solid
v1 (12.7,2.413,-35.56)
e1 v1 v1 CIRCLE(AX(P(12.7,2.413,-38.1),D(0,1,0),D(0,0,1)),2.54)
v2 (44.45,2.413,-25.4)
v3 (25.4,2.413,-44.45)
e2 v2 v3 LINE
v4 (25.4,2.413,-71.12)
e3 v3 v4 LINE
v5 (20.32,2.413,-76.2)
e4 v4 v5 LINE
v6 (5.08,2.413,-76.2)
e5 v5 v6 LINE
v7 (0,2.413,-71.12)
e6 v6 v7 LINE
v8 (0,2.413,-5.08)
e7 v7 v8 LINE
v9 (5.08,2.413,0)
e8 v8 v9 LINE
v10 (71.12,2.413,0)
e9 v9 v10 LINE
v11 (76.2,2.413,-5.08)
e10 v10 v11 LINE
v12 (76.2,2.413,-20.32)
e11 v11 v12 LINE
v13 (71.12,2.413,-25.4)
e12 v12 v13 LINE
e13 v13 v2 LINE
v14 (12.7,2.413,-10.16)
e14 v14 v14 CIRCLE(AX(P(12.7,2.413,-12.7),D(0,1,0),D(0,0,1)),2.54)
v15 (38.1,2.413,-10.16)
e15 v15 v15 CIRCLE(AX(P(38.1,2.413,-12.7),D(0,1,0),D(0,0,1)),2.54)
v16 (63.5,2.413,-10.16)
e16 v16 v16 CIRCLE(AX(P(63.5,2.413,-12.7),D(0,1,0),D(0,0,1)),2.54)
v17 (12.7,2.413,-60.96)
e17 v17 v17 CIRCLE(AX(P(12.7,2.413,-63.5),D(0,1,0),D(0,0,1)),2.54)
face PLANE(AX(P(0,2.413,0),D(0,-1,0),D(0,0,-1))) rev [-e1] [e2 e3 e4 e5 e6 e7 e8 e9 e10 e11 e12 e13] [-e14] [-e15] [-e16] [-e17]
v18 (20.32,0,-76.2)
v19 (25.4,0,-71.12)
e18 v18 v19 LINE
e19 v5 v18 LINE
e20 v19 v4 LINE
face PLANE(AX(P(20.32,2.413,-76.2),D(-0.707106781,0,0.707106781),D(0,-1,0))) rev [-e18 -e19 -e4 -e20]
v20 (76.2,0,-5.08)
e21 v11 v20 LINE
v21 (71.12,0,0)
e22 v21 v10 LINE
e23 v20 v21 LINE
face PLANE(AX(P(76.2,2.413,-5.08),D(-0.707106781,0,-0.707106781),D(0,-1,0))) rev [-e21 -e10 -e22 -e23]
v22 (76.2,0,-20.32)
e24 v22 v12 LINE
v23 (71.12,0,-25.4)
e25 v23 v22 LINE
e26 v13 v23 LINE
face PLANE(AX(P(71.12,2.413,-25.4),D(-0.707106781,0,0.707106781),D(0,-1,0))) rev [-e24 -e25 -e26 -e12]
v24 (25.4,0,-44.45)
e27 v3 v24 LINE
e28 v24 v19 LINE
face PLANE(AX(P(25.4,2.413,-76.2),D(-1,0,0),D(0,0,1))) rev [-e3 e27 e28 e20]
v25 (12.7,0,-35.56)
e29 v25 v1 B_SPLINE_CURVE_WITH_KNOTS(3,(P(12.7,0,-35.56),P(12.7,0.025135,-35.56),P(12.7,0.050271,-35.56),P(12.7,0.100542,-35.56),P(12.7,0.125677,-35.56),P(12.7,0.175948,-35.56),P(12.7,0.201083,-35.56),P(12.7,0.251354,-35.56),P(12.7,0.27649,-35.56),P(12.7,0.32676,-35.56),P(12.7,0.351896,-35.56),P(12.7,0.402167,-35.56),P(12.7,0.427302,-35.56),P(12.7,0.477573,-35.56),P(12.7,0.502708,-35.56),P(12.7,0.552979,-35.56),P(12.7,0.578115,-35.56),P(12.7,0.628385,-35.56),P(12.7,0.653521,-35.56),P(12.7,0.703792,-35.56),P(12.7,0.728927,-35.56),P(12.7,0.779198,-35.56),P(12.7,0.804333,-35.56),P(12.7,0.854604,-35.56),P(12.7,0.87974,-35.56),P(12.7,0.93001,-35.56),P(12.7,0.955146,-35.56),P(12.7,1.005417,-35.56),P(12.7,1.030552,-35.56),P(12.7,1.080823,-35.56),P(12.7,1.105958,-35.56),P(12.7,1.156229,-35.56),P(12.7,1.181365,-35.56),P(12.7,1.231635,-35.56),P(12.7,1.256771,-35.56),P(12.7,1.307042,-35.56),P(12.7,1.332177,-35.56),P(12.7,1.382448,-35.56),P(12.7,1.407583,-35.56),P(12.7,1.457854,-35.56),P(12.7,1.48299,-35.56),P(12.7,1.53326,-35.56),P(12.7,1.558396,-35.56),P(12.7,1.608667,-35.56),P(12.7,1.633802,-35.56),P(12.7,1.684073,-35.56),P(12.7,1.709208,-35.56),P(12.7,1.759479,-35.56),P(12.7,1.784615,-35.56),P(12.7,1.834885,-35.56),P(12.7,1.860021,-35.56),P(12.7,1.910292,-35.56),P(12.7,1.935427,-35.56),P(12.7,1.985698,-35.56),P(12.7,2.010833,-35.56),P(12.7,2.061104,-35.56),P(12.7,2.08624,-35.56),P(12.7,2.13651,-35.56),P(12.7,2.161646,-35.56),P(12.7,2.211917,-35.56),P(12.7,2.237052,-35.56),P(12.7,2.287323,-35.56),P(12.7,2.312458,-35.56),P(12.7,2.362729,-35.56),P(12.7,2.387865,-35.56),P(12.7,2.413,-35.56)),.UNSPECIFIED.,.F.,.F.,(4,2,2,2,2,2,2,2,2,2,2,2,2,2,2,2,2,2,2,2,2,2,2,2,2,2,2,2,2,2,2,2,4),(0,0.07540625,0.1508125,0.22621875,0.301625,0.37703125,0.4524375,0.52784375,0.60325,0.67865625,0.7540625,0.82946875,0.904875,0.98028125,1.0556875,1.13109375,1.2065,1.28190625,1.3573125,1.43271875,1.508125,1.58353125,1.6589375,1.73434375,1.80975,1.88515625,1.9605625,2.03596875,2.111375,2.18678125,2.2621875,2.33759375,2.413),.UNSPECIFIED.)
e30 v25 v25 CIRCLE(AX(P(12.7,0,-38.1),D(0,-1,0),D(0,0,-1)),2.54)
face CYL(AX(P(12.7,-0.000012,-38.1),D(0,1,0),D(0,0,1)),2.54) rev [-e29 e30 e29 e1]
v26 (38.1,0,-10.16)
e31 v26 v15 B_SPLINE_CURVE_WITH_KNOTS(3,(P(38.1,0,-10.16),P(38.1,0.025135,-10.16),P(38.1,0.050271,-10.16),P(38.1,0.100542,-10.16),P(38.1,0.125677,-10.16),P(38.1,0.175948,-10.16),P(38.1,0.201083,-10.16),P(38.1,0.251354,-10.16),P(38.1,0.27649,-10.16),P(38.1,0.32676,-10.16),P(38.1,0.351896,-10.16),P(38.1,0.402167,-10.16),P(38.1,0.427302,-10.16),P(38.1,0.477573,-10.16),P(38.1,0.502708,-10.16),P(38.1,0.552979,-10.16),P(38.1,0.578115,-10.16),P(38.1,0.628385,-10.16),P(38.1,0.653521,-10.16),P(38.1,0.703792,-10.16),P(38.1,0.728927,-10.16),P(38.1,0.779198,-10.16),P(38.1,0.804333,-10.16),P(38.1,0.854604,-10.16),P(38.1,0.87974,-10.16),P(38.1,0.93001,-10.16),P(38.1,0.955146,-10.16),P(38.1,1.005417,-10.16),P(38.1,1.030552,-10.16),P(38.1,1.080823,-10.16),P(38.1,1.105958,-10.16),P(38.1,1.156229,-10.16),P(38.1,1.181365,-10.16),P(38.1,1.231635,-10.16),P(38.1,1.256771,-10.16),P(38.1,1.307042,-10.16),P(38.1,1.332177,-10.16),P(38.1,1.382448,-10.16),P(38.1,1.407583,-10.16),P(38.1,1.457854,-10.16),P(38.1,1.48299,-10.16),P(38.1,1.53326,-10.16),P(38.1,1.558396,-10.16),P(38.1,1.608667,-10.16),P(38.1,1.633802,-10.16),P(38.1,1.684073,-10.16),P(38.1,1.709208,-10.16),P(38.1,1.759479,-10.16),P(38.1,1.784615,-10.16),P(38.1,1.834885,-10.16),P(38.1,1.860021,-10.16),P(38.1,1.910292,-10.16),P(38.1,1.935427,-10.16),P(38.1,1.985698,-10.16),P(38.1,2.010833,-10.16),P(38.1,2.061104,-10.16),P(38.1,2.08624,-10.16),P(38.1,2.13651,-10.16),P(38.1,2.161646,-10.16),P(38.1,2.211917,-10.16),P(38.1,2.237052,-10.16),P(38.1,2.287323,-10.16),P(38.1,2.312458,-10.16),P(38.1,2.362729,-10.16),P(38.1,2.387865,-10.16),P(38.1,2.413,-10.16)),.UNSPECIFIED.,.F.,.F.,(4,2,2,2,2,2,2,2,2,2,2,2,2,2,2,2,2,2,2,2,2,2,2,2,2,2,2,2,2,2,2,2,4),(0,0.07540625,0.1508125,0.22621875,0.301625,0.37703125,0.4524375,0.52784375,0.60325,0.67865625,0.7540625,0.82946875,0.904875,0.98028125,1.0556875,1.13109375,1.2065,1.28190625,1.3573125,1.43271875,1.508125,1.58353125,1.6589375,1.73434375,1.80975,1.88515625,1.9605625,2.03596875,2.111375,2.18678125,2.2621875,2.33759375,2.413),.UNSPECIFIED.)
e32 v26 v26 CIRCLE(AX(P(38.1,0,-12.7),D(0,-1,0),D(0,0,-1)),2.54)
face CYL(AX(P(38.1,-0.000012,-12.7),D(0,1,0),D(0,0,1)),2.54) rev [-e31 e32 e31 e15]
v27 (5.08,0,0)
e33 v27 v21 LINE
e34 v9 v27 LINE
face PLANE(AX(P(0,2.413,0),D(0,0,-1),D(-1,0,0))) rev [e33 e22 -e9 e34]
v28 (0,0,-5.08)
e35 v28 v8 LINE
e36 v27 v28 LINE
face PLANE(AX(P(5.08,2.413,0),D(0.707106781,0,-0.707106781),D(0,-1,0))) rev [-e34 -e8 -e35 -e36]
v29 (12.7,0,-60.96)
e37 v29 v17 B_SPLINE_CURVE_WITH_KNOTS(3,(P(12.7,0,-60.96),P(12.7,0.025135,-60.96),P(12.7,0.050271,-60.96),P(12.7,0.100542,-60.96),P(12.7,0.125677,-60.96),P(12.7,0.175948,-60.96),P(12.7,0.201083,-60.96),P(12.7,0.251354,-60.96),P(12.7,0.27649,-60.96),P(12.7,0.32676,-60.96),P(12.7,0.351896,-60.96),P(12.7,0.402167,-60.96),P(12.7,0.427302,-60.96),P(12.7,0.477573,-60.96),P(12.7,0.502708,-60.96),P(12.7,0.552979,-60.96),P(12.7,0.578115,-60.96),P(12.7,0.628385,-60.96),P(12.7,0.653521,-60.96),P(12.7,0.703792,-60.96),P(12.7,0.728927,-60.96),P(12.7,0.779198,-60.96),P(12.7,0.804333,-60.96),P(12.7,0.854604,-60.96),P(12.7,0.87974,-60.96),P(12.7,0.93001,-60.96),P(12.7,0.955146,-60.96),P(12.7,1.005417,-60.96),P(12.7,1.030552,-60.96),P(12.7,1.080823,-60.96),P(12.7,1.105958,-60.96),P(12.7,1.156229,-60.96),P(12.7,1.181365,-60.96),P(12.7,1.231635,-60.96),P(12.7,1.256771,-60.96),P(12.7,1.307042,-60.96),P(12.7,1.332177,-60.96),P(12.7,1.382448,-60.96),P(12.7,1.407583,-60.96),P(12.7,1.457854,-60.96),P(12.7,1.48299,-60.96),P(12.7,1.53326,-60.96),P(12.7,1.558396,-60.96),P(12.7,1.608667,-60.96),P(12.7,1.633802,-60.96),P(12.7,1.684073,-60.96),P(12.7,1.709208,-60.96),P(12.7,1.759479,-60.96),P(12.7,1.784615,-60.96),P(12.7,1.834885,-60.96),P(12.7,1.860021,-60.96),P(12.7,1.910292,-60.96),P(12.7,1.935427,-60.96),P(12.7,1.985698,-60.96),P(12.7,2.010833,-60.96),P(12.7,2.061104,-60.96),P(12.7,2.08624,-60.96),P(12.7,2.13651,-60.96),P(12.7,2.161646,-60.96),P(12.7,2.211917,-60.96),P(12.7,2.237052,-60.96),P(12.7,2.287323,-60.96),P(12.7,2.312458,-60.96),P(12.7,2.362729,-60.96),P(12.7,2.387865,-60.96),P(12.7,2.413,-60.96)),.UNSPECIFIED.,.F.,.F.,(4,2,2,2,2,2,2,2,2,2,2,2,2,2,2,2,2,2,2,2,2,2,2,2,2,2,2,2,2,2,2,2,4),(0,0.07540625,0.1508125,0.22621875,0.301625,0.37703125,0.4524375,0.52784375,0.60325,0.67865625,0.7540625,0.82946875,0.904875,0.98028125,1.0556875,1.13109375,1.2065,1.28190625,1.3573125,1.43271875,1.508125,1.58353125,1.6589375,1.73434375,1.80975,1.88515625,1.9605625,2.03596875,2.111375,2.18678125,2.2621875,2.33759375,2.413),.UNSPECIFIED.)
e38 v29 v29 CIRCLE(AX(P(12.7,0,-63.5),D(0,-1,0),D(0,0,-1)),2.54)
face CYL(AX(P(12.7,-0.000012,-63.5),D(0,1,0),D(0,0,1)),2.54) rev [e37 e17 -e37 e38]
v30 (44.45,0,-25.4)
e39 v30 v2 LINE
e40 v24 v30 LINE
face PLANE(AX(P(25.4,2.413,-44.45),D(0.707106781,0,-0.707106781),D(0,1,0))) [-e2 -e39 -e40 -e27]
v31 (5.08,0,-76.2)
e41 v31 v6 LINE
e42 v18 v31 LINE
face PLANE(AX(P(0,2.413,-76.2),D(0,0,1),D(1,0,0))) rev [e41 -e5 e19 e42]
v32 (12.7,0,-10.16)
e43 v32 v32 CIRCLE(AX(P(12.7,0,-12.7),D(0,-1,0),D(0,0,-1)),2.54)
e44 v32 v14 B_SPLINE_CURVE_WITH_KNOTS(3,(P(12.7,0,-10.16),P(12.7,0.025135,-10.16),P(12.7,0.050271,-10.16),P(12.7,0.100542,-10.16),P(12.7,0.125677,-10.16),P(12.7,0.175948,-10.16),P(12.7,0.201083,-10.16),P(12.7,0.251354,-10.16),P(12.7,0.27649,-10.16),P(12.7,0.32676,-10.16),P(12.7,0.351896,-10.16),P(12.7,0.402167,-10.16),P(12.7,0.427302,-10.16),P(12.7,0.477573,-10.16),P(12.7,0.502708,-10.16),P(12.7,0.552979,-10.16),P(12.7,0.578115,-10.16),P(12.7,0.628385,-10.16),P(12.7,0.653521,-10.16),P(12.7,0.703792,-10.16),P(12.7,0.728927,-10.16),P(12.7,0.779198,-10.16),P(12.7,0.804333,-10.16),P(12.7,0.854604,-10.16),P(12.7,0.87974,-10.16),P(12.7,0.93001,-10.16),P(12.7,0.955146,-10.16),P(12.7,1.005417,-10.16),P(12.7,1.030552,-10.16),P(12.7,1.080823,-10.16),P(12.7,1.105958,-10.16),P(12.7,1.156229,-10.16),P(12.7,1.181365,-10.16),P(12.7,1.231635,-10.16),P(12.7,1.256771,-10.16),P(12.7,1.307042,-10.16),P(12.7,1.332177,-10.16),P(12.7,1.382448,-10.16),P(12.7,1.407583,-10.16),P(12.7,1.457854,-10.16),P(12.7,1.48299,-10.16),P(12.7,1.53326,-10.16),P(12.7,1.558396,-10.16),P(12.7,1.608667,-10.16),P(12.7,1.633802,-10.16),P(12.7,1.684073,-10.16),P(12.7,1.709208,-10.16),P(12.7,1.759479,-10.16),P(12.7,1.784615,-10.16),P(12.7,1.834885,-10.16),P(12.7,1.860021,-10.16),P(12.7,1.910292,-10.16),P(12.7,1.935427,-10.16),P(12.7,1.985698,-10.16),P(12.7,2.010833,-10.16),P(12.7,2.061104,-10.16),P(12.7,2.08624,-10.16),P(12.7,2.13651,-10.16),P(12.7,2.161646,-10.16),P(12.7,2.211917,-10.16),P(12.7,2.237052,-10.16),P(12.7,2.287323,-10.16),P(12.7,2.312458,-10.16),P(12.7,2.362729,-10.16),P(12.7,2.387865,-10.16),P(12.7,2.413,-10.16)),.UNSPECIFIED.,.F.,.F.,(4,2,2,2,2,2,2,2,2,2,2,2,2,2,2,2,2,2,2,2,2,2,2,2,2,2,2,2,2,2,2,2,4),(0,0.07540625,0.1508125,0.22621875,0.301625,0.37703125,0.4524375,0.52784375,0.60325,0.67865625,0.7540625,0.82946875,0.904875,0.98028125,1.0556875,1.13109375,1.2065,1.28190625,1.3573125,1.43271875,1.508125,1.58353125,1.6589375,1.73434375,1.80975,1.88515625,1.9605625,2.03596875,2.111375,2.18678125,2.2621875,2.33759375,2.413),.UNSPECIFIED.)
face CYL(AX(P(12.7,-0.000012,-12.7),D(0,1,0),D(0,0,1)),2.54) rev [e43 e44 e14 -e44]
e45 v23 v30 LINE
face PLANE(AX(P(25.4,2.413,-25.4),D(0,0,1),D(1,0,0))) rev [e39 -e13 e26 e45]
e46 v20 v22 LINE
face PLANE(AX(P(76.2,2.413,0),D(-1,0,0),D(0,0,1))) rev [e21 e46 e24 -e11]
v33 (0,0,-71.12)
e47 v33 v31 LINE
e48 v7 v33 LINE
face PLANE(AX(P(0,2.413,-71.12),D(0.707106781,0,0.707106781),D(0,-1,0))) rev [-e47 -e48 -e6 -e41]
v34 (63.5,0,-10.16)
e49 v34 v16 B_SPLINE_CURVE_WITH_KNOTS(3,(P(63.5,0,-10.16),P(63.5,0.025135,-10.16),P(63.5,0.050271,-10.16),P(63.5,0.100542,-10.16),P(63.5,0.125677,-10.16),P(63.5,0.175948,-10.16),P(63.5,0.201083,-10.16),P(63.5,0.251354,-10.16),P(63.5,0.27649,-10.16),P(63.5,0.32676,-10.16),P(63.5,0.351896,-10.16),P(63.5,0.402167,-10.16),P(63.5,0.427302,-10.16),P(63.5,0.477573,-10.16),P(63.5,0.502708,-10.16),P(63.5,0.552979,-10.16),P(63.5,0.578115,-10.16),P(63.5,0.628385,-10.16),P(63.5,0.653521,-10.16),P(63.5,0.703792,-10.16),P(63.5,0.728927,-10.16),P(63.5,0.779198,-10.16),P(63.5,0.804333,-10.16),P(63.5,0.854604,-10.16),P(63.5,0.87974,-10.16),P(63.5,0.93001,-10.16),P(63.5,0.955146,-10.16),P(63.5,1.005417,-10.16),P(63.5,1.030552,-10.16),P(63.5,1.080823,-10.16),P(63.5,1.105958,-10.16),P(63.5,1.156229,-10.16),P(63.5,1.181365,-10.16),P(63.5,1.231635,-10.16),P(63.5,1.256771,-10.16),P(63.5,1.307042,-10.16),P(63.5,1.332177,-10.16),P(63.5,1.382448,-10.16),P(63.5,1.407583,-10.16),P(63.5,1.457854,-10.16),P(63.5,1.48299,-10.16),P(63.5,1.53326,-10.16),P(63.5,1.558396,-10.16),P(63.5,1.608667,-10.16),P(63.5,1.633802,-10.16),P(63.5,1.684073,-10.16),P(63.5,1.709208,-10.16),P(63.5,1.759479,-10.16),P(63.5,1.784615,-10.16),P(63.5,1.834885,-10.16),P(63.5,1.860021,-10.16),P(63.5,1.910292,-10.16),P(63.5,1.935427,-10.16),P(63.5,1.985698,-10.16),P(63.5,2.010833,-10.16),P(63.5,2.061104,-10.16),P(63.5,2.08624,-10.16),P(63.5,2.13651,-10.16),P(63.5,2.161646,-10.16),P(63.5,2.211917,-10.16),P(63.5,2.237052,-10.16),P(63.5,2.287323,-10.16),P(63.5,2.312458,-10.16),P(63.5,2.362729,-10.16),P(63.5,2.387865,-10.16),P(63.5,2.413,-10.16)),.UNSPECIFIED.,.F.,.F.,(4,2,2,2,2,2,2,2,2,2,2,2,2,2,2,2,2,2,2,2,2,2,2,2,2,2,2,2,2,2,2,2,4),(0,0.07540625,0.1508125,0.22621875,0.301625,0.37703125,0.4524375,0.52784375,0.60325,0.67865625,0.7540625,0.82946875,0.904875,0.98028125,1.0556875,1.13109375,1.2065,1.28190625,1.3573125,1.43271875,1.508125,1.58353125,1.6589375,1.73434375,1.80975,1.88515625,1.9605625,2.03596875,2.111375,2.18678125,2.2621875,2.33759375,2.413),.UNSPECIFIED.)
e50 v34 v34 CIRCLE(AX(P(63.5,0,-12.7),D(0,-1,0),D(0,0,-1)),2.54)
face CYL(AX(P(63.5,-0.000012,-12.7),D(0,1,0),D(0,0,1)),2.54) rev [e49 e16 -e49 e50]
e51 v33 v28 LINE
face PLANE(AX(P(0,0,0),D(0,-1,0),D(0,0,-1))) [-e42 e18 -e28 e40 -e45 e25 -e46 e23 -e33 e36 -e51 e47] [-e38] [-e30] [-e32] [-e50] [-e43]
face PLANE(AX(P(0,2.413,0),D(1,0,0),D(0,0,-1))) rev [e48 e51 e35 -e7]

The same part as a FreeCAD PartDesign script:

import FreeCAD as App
import Part
import Sketcher
Q = App.Units.Quantity


def edges_at(feature, points):
    """Names of the edges that pass closest to the given points."""
    edges = feature.Shape.Edges
    near = lambda p: min(range(len(edges)), key=lambda i: edges[i].distToShape(Part.Vertex(*p))[0])
    return sorted({f"Edge{near(p) + 1}" for p in points})

doc = App.newDocument("Part")
body = doc.addObject("PartDesign::Body", "Body")

# Sketch on XZ plane
sketch1 = doc.addObject("Sketcher::SketchObject", "Sketch")
body.addObject(sketch1)
sketch1.AttachmentSupport = (doc.XZ_Plane, [""])
sketch1.MapMode = "FlatFace"
sketch1.addGeometry([
    Part.LineSegment(App.Vector(25, -25, 0), App.Vector(25, -76, 0)),  # 0
    Part.LineSegment(App.Vector(25, -76, 0), App.Vector(0, -76, 0)),  # 1
    Part.LineSegment(App.Vector(0, -76, 0), App.Vector(0, 0, 0)),  # 2
    Part.LineSegment(App.Vector(0, 0, 0), App.Vector(76, 0, 0)),  # 3
    Part.LineSegment(App.Vector(76, 0, 0), App.Vector(76, -25, 0)),  # 4
    Part.LineSegment(App.Vector(76, -25, 0), App.Vector(25, -25, 0)),  # 5
], False)
sketch1.addConstraint([
    Sketcher.Constraint("Coincident", 0, 2, 1, 1),
    Sketcher.Constraint("Coincident", 1, 2, 2, 1),
    Sketcher.Constraint("Coincident", 2, 2, 3, 1),
    Sketcher.Constraint("Coincident", 3, 2, 4, 1),
    Sketcher.Constraint("Coincident", 4, 2, 5, 1),
    Sketcher.Constraint("Coincident", 5, 2, 0, 1),
    Sketcher.Constraint("Vertical", 0),
    Sketcher.Constraint("Horizontal", 1),
    Sketcher.Constraint("Vertical", 2),
    Sketcher.Constraint("Horizontal", 3),
    Sketcher.Constraint("Vertical", 4),
    Sketcher.Constraint("Horizontal", 5),
    Sketcher.Constraint("Coincident", 2, 2, -1, 1),
    Sketcher.Constraint("Equal", 5, 0),
    Sketcher.Constraint("Equal", 3, 2),
    Sketcher.Constraint("DistanceX", 1, 2, 1, 1, Q("1 in")),
    Sketcher.Constraint("DistanceX", 3, 1, 3, 2, Q("3 in")),
])
pad1 = doc.addObject("PartDesign::Pad", "Pad")
body.addObject(pad1)
pad1.Profile = sketch1
pad1.Length = Q("0.095 in")
pad1.Reversed = True
doc.recompute()

chamfer = doc.addObject("PartDesign::Chamfer", "Chamfer")
body.addObject(chamfer)
chamfer.Base = (pad1, edges_at(pad1, [(25.4, 1.206, -25.4)]))
chamfer.Size = Q("0.75 in")
doc.recompute()

chamfer2 = doc.addObject("PartDesign::Chamfer", "Chamfer001")
body.addObject(chamfer2)
chamfer2.Base = (chamfer, edges_at(chamfer, [
    (0, 1.206, -76.2),
    (25.4, 1.206, -76.2),
    (76.2, 1.206, -25.4),
    (76.2, 1.206, 0),
    (0, 1.206, 0),
]))
chamfer2.Size = Q("0.2 in")

# Sketch on XZ plane
sketch2 = doc.addObject("Sketcher::SketchObject", "Sketch001")
body.addObject(sketch2)
sketch2.AttachmentSupport = (doc.XZ_Plane, [""])
sketch2.MapMode = "FlatFace"
sketch2.addGeometry([
    Part.Circle(App.Vector(12.7, -12.7, 0), App.Vector(0, 0, 1), 2.5),  # 0
    Part.Circle(App.Vector(12.7, -38.1, 0), App.Vector(0, 0, 1), 2.5),  # 1
    Part.Circle(App.Vector(38.1, -12.7, 0), App.Vector(0, 0, 1), 2.5),  # 2
    Part.Circle(App.Vector(12.7, -63.5, 0), App.Vector(0, 0, 1), 2.5),  # 3
    Part.Circle(App.Vector(63.5, -12.7, 0), App.Vector(0, 0, 1), 2.5),  # 4
], False)
sketch2.addConstraint([
    Sketcher.Constraint("Equal", 0, 1),
    Sketcher.Constraint("Equal", 1, 2),
    Sketcher.Constraint("Equal", 2, 3),
    Sketcher.Constraint("Equal", 3, 4),
    Sketcher.Constraint("Horizontal", 0, 3, 2, 3),
    Sketcher.Constraint("Horizontal", 2, 3, 4, 3),
    Sketcher.Constraint("Vertical", 0, 3, 1, 3),
    Sketcher.Constraint("Vertical", 1, 3, 3, 3),
    Sketcher.Constraint("Diameter", 0, Q("0.2 in")),
    Sketcher.Constraint("DistanceY", 1, 3, 0, 3, Q("1 in")),
    Sketcher.Constraint("DistanceX", 0, 3, 2, 3, Q("1 in")),
    Sketcher.Constraint("DistanceY", 3, 3, 1, 3, Q("1 in")),
    Sketcher.Constraint("DistanceX", 2, 3, 4, 3, Q("1 in")),
    Sketcher.Constraint("DistanceX", -1, 1, 0, 3, Q("0.5 in")),
    Sketcher.Constraint("DistanceY", 0, 3, -1, 1, Q("0.5 in")),
])
pocket1 = doc.addObject("PartDesign::Pocket", "Pocket")
body.addObject(pocket1)
pocket1.Profile = sketch2
pocket1.Type = "ThroughAll"
pocket1.Midplane = True

doc.recompute()
